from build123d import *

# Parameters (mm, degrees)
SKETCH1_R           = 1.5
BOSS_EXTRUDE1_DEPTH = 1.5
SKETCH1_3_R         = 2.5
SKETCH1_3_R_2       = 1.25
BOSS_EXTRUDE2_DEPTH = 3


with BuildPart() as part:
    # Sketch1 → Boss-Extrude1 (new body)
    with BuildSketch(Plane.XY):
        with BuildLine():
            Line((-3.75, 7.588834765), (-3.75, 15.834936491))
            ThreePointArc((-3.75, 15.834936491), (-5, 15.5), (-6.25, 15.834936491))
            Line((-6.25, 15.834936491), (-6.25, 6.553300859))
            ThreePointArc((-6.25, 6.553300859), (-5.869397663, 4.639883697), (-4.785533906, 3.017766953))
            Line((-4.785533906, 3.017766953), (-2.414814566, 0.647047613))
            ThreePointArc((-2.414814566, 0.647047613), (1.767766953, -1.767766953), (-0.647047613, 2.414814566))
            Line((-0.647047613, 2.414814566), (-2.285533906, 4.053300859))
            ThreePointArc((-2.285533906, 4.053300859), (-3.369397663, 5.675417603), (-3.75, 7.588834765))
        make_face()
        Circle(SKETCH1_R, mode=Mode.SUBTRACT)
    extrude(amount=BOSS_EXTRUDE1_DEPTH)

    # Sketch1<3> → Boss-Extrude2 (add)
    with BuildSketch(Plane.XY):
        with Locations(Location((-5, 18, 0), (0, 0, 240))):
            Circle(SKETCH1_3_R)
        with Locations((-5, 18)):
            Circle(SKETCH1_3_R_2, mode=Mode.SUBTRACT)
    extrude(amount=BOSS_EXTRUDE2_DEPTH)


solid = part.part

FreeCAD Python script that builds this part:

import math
import FreeCAD as App
import Part
import Sketcher
from FreeCAD import Vector
Q = App.Units.Quantity

doc = App.newDocument("Part")
body = doc.addObject("PartDesign::Body", "Body")

sketch1 = body.newObject("Sketcher::SketchObject", "Sketch")
sketch1.AttachmentSupport = (doc.getObject("XY_Plane"), [""])
sketch1.MapMode = "FlatFace"
sketch1.addGeometry([
    Part.LineSegment(Vector(-3.8, 7.6, 0), Vector(-3.8, 15.8, 0)),
    Part.ArcOfCircle(Part.Circle(Vector(-5, 18, 0), Vector(0, 0, 1), 2.5), math.radians(-120), math.radians(-60)),
    Part.LineSegment(Vector(-6.2, 15.8, 0), Vector(-6.2, 6.6, 0)),
    Part.ArcOfCircle(Part.Circle(Vector(-1.3, 6.6, 0), Vector(0, 0, 1), 5), math.radians(180), math.radians(225)),
    Part.LineSegment(Vector(-4.8, 3, 0), Vector(-2.4, 0.6, 0)),
    Part.ArcOfCircle(Part.Circle(Vector(0, 0, 0), Vector(0, 0, 1), 2.5), math.radians(165), math.radians(465)),
    Part.LineSegment(Vector(-0.6, 2.4, 0), Vector(-2.3, 4.1, 0)),
    Part.ArcOfCircle(Part.Circle(Vector(1.2, 7.6, 0), Vector(0, 0, 1), 5), math.radians(180), math.radians(225)),
    Part.Circle(Vector(0, 0, 0), Vector(0, 0, 1), 1.5),
], False)
sketch1.addConstraint([
    Sketcher.Constraint("Coincident", 0, 2, 1, 2),
    Sketcher.Constraint("Coincident", 1, 1, 2, 1),
    Sketcher.Constraint("Tangent", 2, 2, 3, 1),
    Sketcher.Constraint("Tangent", 3, 2, 4, 1),
    Sketcher.Constraint("Coincident", 4, 2, 5, 1),
    Sketcher.Constraint("Coincident", 5, 2, 6, 1),
    Sketcher.Constraint("Tangent", 6, 2, 7, 2),
    Sketcher.Constraint("Tangent", 7, 1, 0, 1),
    Sketcher.Constraint("Vertical", 0),
    Sketcher.Constraint("Vertical", 2),
    Sketcher.Constraint("Coincident", 5, 3, -1, 1),
    Sketcher.Constraint("Coincident", 8, 3, -1, 1),
    Sketcher.Constraint("Equal", 1, 5),
    Sketcher.Constraint("Equal", 3, 7),
    Sketcher.Constraint("Parallel", 4, 6),
    Sketcher.Constraint("Horizontal", 0, 2, 1, 1),
    Sketcher.Constraint("Diameter", 8, 3.0),
    Sketcher.Constraint("Radius", 3, 5.0),
    Sketcher.Constraint("Radius", 1, 2.5),
    Sketcher.Constraint("Angle", 4, Q("-45 deg")),
    Sketcher.Constraint("DistanceX", 1, 3, -1, 1, 5.0),
    Sketcher.Constraint("DistanceY", -1, 1, 1, 3, 18.0),
    Sketcher.Constraint("DistanceX", 3, 3, 7, 3, 2.5),
    Sketcher.Constraint("DistanceY", 6, 2, 3, 3, 2.5),
    Sketcher.Constraint("DistanceY", 0, 1, 0, 2, 8.246102),
])
pad1 = body.newObject("PartDesign::Pad", "Pad")
pad1.Profile = sketch1
pad1.Length = 1.5

sketch2 = body.newObject("Sketcher::SketchObject", "Sketch001")
sketch2.AttachmentSupport = (doc.getObject("XY_Plane"), [""])
sketch2.MapMode = "FlatFace"
sketch2.addGeometry([
    Part.Circle(Vector(-5, 18, 0), Vector(0, 0, 1), 2.5),
    Part.Circle(Vector(-5, 18, 0), Vector(0, 0, 1), 1.2),
], False)
sketch2.addConstraint([
    Sketcher.Constraint("Coincident", 1, 3, 0, 3),
    Sketcher.Constraint("Diameter", 0, 5.0),
    Sketcher.Constraint("Diameter", 1, 2.5),
    Sketcher.Constraint("DistanceX", 0, 3, -1, 1, 5.0),
    Sketcher.Constraint("DistanceY", -1, 1, 0, 3, 18.0),
])
pad2 = body.newObject("PartDesign::Pad", "Pad001")
pad2.Profile = sketch2
pad2.Length = 3

doc.recompute()
